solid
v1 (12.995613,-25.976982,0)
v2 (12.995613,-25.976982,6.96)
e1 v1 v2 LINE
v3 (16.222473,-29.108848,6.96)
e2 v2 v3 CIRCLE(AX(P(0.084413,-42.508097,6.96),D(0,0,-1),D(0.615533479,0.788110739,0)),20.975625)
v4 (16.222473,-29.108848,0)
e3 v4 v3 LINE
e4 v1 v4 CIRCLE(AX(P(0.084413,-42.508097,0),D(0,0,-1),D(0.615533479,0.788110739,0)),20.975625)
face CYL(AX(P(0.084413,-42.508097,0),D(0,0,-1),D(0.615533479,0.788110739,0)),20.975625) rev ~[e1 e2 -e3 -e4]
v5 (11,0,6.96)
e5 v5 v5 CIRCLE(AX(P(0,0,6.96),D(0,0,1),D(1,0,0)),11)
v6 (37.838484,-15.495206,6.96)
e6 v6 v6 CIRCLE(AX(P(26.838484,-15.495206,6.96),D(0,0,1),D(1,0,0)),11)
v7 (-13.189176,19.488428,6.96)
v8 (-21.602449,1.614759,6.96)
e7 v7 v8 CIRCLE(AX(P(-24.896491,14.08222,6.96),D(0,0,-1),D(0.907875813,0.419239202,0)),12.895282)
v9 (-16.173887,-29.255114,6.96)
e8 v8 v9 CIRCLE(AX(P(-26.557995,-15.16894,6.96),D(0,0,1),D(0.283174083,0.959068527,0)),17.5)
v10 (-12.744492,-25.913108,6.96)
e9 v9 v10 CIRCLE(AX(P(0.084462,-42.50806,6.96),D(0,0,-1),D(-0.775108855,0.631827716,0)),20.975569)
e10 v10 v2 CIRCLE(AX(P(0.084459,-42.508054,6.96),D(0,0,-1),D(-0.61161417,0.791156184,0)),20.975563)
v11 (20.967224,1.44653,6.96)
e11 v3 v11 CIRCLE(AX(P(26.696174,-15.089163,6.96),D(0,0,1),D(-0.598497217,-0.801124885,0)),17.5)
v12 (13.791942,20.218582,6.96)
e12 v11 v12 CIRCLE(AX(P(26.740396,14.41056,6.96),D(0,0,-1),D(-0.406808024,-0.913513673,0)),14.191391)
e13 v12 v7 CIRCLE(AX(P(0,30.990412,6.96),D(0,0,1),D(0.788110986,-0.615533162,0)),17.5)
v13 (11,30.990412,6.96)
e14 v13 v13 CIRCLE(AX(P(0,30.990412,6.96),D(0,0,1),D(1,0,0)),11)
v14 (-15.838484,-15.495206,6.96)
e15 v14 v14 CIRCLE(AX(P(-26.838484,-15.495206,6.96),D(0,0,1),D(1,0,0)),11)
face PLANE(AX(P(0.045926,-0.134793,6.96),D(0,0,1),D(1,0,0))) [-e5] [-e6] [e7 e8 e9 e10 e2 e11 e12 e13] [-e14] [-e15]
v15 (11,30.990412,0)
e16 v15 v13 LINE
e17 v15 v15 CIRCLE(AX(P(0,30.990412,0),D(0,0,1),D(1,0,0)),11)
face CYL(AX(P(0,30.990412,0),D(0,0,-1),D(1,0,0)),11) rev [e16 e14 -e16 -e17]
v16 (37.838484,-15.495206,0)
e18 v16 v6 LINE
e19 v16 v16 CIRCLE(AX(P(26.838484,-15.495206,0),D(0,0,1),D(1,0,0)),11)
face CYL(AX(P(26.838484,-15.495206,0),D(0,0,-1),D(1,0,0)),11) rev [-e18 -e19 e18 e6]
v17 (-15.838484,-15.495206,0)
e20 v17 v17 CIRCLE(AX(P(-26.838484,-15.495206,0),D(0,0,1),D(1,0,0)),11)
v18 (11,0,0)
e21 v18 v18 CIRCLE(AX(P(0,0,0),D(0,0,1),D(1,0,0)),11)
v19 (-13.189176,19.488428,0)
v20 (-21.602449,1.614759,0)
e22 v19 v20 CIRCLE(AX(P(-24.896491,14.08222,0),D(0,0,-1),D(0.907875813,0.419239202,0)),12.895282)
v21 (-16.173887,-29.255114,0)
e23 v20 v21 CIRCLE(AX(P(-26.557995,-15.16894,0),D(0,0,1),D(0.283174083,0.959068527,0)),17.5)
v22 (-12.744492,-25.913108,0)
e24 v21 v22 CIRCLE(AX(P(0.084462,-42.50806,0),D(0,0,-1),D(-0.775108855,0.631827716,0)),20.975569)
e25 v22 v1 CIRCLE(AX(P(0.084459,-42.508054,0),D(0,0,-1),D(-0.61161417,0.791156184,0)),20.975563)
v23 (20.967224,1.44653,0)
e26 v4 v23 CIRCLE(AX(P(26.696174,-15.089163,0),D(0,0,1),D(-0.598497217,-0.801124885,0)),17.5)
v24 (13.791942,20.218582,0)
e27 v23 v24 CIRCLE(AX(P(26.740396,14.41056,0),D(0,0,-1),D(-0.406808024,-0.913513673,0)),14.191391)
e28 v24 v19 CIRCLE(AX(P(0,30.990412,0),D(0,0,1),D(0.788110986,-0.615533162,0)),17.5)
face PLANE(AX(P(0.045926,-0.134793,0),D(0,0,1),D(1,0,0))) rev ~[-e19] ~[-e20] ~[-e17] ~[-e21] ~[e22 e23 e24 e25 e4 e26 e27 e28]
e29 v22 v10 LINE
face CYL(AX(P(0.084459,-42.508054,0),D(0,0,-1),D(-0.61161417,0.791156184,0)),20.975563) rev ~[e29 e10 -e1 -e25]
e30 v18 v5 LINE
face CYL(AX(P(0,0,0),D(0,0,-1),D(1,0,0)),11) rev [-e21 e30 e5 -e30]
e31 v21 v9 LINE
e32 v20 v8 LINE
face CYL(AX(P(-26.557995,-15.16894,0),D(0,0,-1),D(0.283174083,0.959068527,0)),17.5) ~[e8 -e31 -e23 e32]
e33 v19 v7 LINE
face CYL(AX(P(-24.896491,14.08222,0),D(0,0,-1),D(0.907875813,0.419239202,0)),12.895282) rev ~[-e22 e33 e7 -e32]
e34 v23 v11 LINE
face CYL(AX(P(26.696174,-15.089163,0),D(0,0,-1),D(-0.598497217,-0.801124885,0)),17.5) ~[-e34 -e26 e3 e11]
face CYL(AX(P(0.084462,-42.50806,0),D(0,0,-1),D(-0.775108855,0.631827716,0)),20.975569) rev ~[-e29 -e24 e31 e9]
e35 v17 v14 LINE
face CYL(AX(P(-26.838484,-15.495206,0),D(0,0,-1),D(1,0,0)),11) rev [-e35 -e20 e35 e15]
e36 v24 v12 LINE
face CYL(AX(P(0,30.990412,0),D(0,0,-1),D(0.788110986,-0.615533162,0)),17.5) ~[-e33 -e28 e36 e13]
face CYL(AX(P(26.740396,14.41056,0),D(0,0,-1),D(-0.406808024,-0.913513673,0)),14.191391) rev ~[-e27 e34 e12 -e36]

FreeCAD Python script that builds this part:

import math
import FreeCAD as App
import Part
import Sketcher
from FreeCAD import Vector

doc = App.newDocument("Part")
body = doc.addObject("PartDesign::Body", "Body")

# Sketch on XY plane
sketch1 = body.newObject("Sketcher::SketchObject", "Sketch")
sketch1.AttachmentSupport = (doc.getObject("XY_Plane"), [""])
sketch1.MapMode = "FlatFace"
sketch1.addGeometry([
    Part.ArcOfCircle(Part.Circle(Vector(26.740396, 14.41056, 0), Vector(0, 0, 1), 14.191391), math.radians(155.841405), math.radians(245.995523)),  # 0
    Part.ArcOfCircle(Part.Circle(Vector(0, 30.990412, 0), Vector(0, 0, 1), 17.5), math.radians(-37.990671), math.radians(221.090953)),  # 1
    Part.ArcOfCircle(Part.Circle(Vector(-24.896491, 14.08222, 0), Vector(0, 0, 1), 12.895282), math.radians(-75.200016), math.radians(24.786564)),  # 2
    Part.ArcOfCircle(Part.Circle(Vector(-26.557995, -15.16894, 0), Vector(0, 0, 1), 17.5), math.radians(73.550264), math.radians(306.397063)),  # 3
    Part.ArcOfCircle(Part.Circle(Vector(0.084462, -42.50806, 0), Vector(0, 0, 1), 20.975569), math.radians(127.706306), math.radians(140.814903)),  # 4
    Part.ArcOfCircle(Part.Circle(Vector(0.084459, -42.508054, 0), Vector(0, 0, 1), 20.975563), math.radians(52.009332), math.radians(127.70631)),  # 5
    Part.ArcOfCircle(Part.Circle(Vector(0.084413, -42.508097, 0), Vector(0, 0, 1), 20.975625), math.radians(39.702468), math.radians(52.009306)),  # 6
    Part.ArcOfCircle(Part.Circle(Vector(26.696174, -15.089163, 0), Vector(0, 0, 1), 17.5), math.radians(-126.762344), math.radians(109.109137)),  # 7
    Part.Circle(Vector(-26.838484, -15.495206, 0), Vector(0, 0, 1), 11),  # 8
    Part.Circle(Vector(26.838484, -15.495206, 0), Vector(0, 0, 1), 11),  # 9
    Part.Circle(Vector(0, 0, 0), Vector(0, 0, 1), 11),  # 10
    Part.Circle(Vector(0, 30.990412, 0), Vector(0, 0, 1), 11),  # 11
], False)
sketch1.addConstraint([
    Sketcher.Constraint("Coincident", 0, 1, 1, 1),
    Sketcher.Constraint("Coincident", 1, 2, 2, 2),
    Sketcher.Constraint("Coincident", 2, 1, 3, 1),
    Sketcher.Constraint("Coincident", 3, 2, 4, 2),
    Sketcher.Constraint("Tangent", 4, 1, 5, 2),
    Sketcher.Constraint("Tangent", 5, 1, 6, 2),
    Sketcher.Constraint("Coincident", 6, 1, 7, 1),
    Sketcher.Constraint("Coincident", 7, 2, 0, 2),
    Sketcher.Constraint("Coincident", 10, 3, -1, 1),
    Sketcher.Constraint("Coincident", 11, 3, 1, 3),
    Sketcher.Constraint("Equal", 1, 3),
    Sketcher.Constraint("Equal", 3, 7),
    Sketcher.Constraint("Equal", 8, 9),
    Sketcher.Constraint("Equal", 9, 10),
    Sketcher.Constraint("Equal", 10, 11),
    Sketcher.Constraint("Symmetric", 8, 3, 9, 3, -2),
    Sketcher.Constraint("PointOnObject", 1, 3, -2),
    Sketcher.Constraint("Diameter", 8, 22.0),
    Sketcher.Constraint("Radius", 1, 17.5),
    Sketcher.Constraint("Radius", 0, 14.191391),
    Sketcher.Constraint("Radius", 4, 20.975569),
    Sketcher.Constraint("Radius", 2, 12.895282),
    Sketcher.Constraint("Radius", 5, 20.975563),
    Sketcher.Constraint("Radius", 6, 20.975625),
    Sketcher.Constraint("DistanceY", 3, 3, 0, 3, 29.5795),
    Sketcher.Constraint("DistanceY", 3, 3, 2, 1, 16.783699),
    Sketcher.Constraint("DistanceX", 3, 2, 6, 3, 16.2583),
    Sketcher.Constraint("DistanceY", 4, 1, 8, 3, 10.417902),
    Sketcher.Constraint("DistanceX", 6, 3, 5, 1, 12.9112),
    Sketcher.Constraint("DistanceX", 6, 1, 7, 3, 10.473701),
    Sketcher.Constraint("DistanceY", -1, 1, 0, 3, 14.41056),
    Sketcher.Constraint("DistanceX", 2, 3, -1, 1, 24.896491),
    Sketcher.Constraint("DistanceY", -1, 1, 2, 3, 14.08222),
    Sketcher.Constraint("DistanceY", 4, 3, -1, 1, 42.50806),
    Sketcher.Constraint("DistanceY", -1, 1, 11, 3, 30.990412),
    Sketcher.Constraint("DistanceY", -1, 1, 0, 1, 20.218582),
    Sketcher.Constraint("DistanceY", -1, 1, 7, 2, 1.44653),
    Sketcher.Constraint("DistanceX", 8, 3, 3, 3, 0.280489),
    Sketcher.Constraint("DistanceY", 6, 3, 8, 3, 27.012891),
])
pad1 = body.newObject("PartDesign::Pad", "Pad")
pad1.Profile = sketch1
pad1.Length = 6.96

doc.recompute()
